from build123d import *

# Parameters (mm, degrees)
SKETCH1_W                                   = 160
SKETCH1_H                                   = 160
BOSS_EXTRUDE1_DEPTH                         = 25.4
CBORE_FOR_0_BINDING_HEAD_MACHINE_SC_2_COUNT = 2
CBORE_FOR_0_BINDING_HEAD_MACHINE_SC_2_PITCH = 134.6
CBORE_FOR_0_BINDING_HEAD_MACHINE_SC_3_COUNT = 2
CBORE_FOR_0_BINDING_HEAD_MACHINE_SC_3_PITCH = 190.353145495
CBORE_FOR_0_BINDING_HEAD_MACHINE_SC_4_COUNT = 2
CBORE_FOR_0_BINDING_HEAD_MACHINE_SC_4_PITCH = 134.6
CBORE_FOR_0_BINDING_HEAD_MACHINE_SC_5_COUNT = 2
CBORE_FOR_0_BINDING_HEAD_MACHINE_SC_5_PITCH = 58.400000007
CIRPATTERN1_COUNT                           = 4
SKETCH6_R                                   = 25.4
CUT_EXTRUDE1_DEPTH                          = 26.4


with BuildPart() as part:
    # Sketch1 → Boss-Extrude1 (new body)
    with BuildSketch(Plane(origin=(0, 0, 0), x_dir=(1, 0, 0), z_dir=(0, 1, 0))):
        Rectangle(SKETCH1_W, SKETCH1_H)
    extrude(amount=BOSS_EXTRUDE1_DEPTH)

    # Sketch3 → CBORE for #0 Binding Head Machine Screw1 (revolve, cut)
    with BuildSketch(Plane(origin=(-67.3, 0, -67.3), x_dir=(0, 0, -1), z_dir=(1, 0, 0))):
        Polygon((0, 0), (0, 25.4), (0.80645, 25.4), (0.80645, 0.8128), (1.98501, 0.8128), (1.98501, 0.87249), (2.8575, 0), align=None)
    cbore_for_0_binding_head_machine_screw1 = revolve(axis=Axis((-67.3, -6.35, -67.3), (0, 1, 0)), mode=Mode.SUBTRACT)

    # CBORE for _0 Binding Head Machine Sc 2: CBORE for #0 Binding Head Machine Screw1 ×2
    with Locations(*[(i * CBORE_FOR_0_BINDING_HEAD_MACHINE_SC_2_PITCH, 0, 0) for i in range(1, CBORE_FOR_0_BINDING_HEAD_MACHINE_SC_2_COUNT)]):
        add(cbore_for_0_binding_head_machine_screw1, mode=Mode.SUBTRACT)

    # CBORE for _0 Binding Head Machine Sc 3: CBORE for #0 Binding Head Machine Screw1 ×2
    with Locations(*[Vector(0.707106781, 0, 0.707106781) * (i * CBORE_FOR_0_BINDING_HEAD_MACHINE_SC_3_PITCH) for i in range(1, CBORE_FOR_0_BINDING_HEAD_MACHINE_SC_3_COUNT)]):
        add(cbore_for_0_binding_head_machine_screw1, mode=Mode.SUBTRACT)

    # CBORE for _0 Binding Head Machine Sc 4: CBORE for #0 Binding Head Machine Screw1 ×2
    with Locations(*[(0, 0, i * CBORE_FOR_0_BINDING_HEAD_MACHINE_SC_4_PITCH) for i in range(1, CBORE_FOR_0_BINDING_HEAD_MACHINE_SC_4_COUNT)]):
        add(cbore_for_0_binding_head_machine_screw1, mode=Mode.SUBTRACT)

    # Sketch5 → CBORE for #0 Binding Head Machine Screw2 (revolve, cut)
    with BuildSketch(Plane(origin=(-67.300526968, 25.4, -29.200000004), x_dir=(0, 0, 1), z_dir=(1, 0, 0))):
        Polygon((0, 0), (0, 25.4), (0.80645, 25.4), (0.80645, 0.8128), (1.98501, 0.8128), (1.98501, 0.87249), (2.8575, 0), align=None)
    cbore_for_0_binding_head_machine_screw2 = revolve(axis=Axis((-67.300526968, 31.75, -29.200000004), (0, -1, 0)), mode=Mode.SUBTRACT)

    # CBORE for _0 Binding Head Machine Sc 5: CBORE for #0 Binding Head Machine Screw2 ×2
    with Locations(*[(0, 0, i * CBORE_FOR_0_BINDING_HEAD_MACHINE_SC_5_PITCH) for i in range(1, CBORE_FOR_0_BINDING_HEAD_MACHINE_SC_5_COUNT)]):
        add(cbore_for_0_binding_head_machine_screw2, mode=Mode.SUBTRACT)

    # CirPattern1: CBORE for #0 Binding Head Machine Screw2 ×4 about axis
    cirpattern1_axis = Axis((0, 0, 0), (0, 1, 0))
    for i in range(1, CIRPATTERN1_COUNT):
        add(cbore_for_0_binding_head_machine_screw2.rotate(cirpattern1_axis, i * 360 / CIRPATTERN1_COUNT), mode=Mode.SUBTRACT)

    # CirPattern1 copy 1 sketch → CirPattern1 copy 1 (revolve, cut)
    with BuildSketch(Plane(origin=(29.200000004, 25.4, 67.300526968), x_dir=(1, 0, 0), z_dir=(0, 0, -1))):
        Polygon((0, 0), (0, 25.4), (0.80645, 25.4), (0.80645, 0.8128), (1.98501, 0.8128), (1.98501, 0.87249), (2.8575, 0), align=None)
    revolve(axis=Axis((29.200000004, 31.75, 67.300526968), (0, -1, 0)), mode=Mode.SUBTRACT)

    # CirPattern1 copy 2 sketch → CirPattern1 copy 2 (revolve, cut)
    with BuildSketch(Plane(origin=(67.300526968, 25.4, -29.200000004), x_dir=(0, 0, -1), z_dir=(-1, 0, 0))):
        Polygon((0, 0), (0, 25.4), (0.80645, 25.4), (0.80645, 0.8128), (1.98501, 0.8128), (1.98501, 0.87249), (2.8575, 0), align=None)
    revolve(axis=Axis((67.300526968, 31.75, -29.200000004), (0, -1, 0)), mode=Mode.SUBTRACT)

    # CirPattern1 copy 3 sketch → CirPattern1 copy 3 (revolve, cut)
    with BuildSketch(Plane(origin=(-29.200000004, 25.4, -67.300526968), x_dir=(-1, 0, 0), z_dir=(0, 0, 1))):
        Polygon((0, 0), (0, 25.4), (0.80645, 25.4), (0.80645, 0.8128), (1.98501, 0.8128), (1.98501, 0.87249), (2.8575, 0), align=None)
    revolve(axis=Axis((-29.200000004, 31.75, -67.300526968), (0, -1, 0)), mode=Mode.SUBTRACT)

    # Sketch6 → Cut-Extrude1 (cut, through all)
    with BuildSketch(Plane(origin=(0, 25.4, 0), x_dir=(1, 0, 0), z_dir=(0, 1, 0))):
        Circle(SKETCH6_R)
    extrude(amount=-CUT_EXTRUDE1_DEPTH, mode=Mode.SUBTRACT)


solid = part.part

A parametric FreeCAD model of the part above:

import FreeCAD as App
import Part
import Sketcher
Q = App.Units.Quantity


def add_polygon(sketch, points):
    """Adds a closed chain of lines whose ends are joined by coincident constraints."""
    first, n = sketch.GeometryCount, len(points)
    for a, b in zip(points, points[1:] + points[:1]):
        sketch.addGeometry(Part.LineSegment(App.Vector(*a, 0), App.Vector(*b, 0)), False)
    for i in range(n):
        sketch.addConstraint(Sketcher.Constraint("Coincident", first + i, 2, first + (i + 1) % n, 1))

doc = App.newDocument("Part")
params = doc.addObject("Spreadsheet::Sheet", "Params")
for row, (alias, value) in enumerate([
    ("pad1_length", "1 in"),
    ("sketch2_width", "1 in"),
    ("sketch2_width2", "0.968 in"),
    ("groove_angle", "360 deg"),
    ("linearpattern_pitch", "134.6 mm"),
    ("linearpattern2_pitch", "190.353145 mm"),
    ("linearpattern3_pitch", "134.6 mm"),
    ("sketch3_width", "1 in"),
    ("sketch3_width2", "0.968 in"),
    ("groove2_angle", "360 deg"),
    ("linearpattern4_pitch", "58.4 mm"),
    ("sketch4_height", "1 in"),
    ("sketch4_height2", "0.968 in"),
    ("groove3_angle", "360 deg"),
    ("sketch5_width", "1 in"),
    ("sketch5_width2", "0.968 in"),
    ("groove4_angle", "360 deg"),
    ("sketch6_height", "1 in"),
    ("sketch6_height2", "0.968 in"),
    ("groove5_angle", "360 deg"),
    ("sketch7_diameter", "2 in"),
], start=1):
    params.set(f"A{row}", alias)
    params.set(f"B{row}", "=" + value)
    params.setAlias(f"B{row}", alias)

body = doc.addObject("PartDesign::Body", "Body")

# Sketch on XZ plane
sketch1 = body.newObject("Sketcher::SketchObject", "Sketch")
sketch1.AttachmentSupport = (doc.getObject("XZ_Plane"), [""])
sketch1.MapMode = "FlatFace"
add_polygon(sketch1, [(-80, -80), (-80, 80), (80, 80), (80, -80)])  # lines 0-3
sketch1.addConstraint([
    Sketcher.Constraint("Vertical", 0),
    Sketcher.Constraint("Horizontal", 1),
    Sketcher.Constraint("Vertical", 2),
    Sketcher.Constraint("Horizontal", 3),
    Sketcher.Constraint("Symmetric", 0, 2, 2, 2, -1, 1),
    Sketcher.Constraint("Equal", 3, 0),
    Sketcher.Constraint("DistanceX", 1, 1, 1, 2, 160.0),
])
pad1 = body.newObject("PartDesign::Pad", "Pad")
pad1.Profile = sketch1
pad1.setExpression("Length", "Params.pad1_length")
pad1.Reversed = True

# Sketch on YZ plane
sketch2 = body.newObject("Sketcher::SketchObject", "Sketch001")
sketch2.AttachmentSupport = (doc.getObject("YZ_Plane"), [""])
sketch2.MapMode = "FlatFace"
sketch2.AttachmentOffset = App.Placement(App.Vector(0, 0, -67.3), App.Rotation())
add_polygon(sketch2, [(25.4, -67.3), (0, -67.3), (0, -70.1575), (0.87249, -69.28501), (0.8128, -69.28501), (0.8128, -68.10645), (25.4, -68.10645)])  # lines 0-6
sketch2.addGeometry(Part.LineSegment(App.Vector(0, -67.3, 0), App.Vector(25.4, -67.3, 0)), True)  # axis
sketch2.addConstraint([
    Sketcher.Constraint("Horizontal", 0),
    Sketcher.Constraint("Vertical", 1),
    Sketcher.Constraint("Horizontal", 3),
    Sketcher.Constraint("Vertical", 4),
    Sketcher.Constraint("Horizontal", 5),
    Sketcher.Constraint("Vertical", 6),
    Sketcher.Constraint("Horizontal", 7),
    Sketcher.Constraint("Coincident", 7, 1, 0, 2),
    Sketcher.Constraint("PointOnObject", 0, 2, -2),
    Sketcher.Constraint("Vertical", 5, 2, 7, 2),
    Sketcher.Constraint("DistanceX", 0, 2, 0, 1, Q("1 in")),
    Sketcher.Constraint("Angle", 2, Q("45 deg")),
    Sketcher.Constraint("DistanceX", 5, 1, 5, 2, Q("0.968 in")),
    Sketcher.Constraint("DistanceY", 1, 2, 1, 1, Q("0.1125 in")),
    Sketcher.Constraint("DistanceY", 4, 1, 4, 2, Q("0.0464 in")),
    Sketcher.Constraint("DistanceX", 3, 2, 3, 1, 0.05969),
    Sketcher.Constraint("DistanceY", 0, 2, -1, 1, 67.3),
])
sketch2.setExpression("Constraints[17]", "Params.sketch2_width")
sketch2.setExpression("Constraints[19]", "Params.sketch2_width2")
groove = body.newObject("PartDesign::Groove", "Groove")
groove.Profile = sketch2
groove.ReferenceAxis = (sketch2, ["Axis0"])
groove.setExpression("Angle", "Params.groove_angle")
doc.recompute()

linearpattern = body.newObject("PartDesign::LinearPattern", "LinearPattern")
linearpattern.Originals = [groove]
linearpattern.Direction = (doc.getObject("X_Axis"), [""])
linearpattern.Mode = "offset"
linearpattern.setExpression("Offset", "Params.linearpattern_pitch")
linearpattern.Occurrences = 2
body.Tip = linearpattern
doc.recompute()

datumline = body.newObject("PartDesign::Line", "DatumLine")
datumline.Placement = App.Placement(App.Vector(0, 0, 0), App.Rotation(App.Vector(0, 0, 1), App.Vector(0.707106781, 0, 0.707106781)))
linearpattern2 = body.newObject("PartDesign::LinearPattern", "LinearPattern001")
linearpattern2.Originals = [groove]
linearpattern2.Direction = (datumline, [""])
linearpattern2.Mode = "offset"
linearpattern2.setExpression("Offset", "Params.linearpattern2_pitch")
linearpattern2.Occurrences = 2
body.Tip = linearpattern2
doc.recompute()

linearpattern3 = body.newObject("PartDesign::LinearPattern", "LinearPattern002")
linearpattern3.Originals = [groove]
linearpattern3.Direction = (doc.getObject("Z_Axis"), [""])
linearpattern3.Mode = "offset"
linearpattern3.setExpression("Offset", "Params.linearpattern3_pitch")
linearpattern3.Occurrences = 2
body.Tip = linearpattern3

# Sketch on YZ plane
sketch3 = body.newObject("Sketcher::SketchObject", "Sketch002")
sketch3.AttachmentSupport = (doc.getObject("YZ_Plane"), [""])
sketch3.MapMode = "FlatFace"
sketch3.AttachmentOffset = App.Placement(App.Vector(0, 0, -67.300527), App.Rotation())
add_polygon(sketch3, [(0, -29.2), (25.4, -29.2), (25.4, -26.3425), (24.52751, -27.21499), (24.5872, -27.21499), (24.5872, -28.39355), (0, -28.39355)])  # lines 0-6
sketch3.addGeometry(Part.LineSegment(App.Vector(25.4, -29.2, 0), App.Vector(0, -29.2, 0)), True)  # axis
sketch3.addConstraint([
    Sketcher.Constraint("Horizontal", 0),
    Sketcher.Constraint("Vertical", 1),
    Sketcher.Constraint("Horizontal", 3),
    Sketcher.Constraint("Vertical", 4),
    Sketcher.Constraint("Horizontal", 5),
    Sketcher.Constraint("Vertical", 6),
    Sketcher.Constraint("Horizontal", 7),
    Sketcher.Constraint("Coincident", 7, 1, 0, 2),
    Sketcher.Constraint("PointOnObject", 5, 2, -2),
    Sketcher.Constraint("PointOnObject", 7, 2, -2),
    Sketcher.Constraint("DistanceX", 0, 1, 0, 2, Q("1 in")),
    Sketcher.Constraint("Angle", 2, Q("-135 deg")),
    Sketcher.Constraint("DistanceX", 5, 2, 5, 1, Q("0.968 in")),
    Sketcher.Constraint("DistanceY", 1, 1, 1, 2, Q("0.1125 in")),
    Sketcher.Constraint("DistanceY", 4, 2, 4, 1, Q("0.0464 in")),
    Sketcher.Constraint("DistanceX", 3, 1, 3, 2, 0.05969),
    Sketcher.Constraint("DistanceY", 0, 2, -1, 1, 29.2),
])
sketch3.setExpression("Constraints[17]", "Params.sketch3_width")
sketch3.setExpression("Constraints[19]", "Params.sketch3_width2")
groove2 = body.newObject("PartDesign::Groove", "Groove001")
groove2.Profile = sketch3
groove2.ReferenceAxis = (sketch3, ["Axis0"])
groove2.setExpression("Angle", "Params.groove2_angle")
doc.recompute()

linearpattern4 = body.newObject("PartDesign::LinearPattern", "LinearPattern003")
linearpattern4.Originals = [groove2]
linearpattern4.Direction = (doc.getObject("Z_Axis"), [""])
linearpattern4.Mode = "offset"
linearpattern4.setExpression("Offset", "Params.linearpattern4_pitch")
linearpattern4.Occurrences = 2
body.Tip = linearpattern4
doc.recompute()

polarpattern = body.newObject("PartDesign::PolarPattern", "PolarPattern")
polarpattern.Originals = [groove2]
polarpattern.Axis = (doc.getObject("Y_Axis"), [""])
polarpattern.Angle = 360
polarpattern.Occurrences = 4
body.Tip = polarpattern

# Sketch on XY plane
sketch4 = body.newObject("Sketcher::SketchObject", "Sketch003")
sketch4.AttachmentSupport = (doc.getObject("XY_Plane"), [""])
sketch4.MapMode = "FlatFace"
sketch4.AttachmentOffset = App.Placement(App.Vector(0, 0, 67.300527), App.Rotation())
add_polygon(sketch4, [(29.2, 0), (29.2, 25.4), (32.0575, 25.4), (31.18501, 24.52751), (31.18501, 24.5872), (30.00645, 24.5872), (30.00645, 0)])  # lines 0-6
sketch4.addGeometry(Part.LineSegment(App.Vector(29.2, 25.4, 0), App.Vector(29.2, 0, 0)), True)  # axis
sketch4.addConstraint([
    Sketcher.Constraint("Vertical", 0),
    Sketcher.Constraint("Horizontal", 1),
    Sketcher.Constraint("Vertical", 3),
    Sketcher.Constraint("Horizontal", 4),
    Sketcher.Constraint("Vertical", 5),
    Sketcher.Constraint("Horizontal", 6),
    Sketcher.Constraint("Vertical", 7),
    Sketcher.Constraint("Coincident", 7, 1, 0, 2),
    Sketcher.Constraint("PointOnObject", 5, 2, -1),
    Sketcher.Constraint("PointOnObject", 7, 2, -1),
    Sketcher.Constraint("DistanceY", 0, 1, 0, 2, Q("1 in")),
    Sketcher.Constraint("Angle", 2, Q("-135 deg")),
    Sketcher.Constraint("DistanceY", 5, 2, 5, 1, Q("0.968 in")),
    Sketcher.Constraint("DistanceX", 1, 1, 1, 2, Q("0.1125 in")),
    Sketcher.Constraint("DistanceX", 4, 2, 4, 1, Q("0.0464 in")),
    Sketcher.Constraint("DistanceX", 6, 2, 6, 1, 0.80645),
    Sketcher.Constraint("DistanceX", -1, 1, 0, 2, 29.2),
])
sketch4.setExpression("Constraints[17]", "Params.sketch4_height")
sketch4.setExpression("Constraints[19]", "Params.sketch4_height2")
groove3 = body.newObject("PartDesign::Groove", "Groove002")
groove3.Profile = sketch4
groove3.ReferenceAxis = (sketch4, ["Axis0"])
groove3.setExpression("Angle", "Params.groove3_angle")

# Sketch on YZ plane
sketch5 = body.newObject("Sketcher::SketchObject", "Sketch004")
sketch5.AttachmentSupport = (doc.getObject("YZ_Plane"), [""])
sketch5.MapMode = "FlatFace"
sketch5.AttachmentOffset = App.Placement(App.Vector(0, 0, 67.300527), App.Rotation())
add_polygon(sketch5, [(0, -29.2), (25.4, -29.2), (25.4, -32.0575), (24.52751, -31.18501), (24.5872, -31.18501), (24.5872, -30.00645), (0, -30.00645)])  # lines 0-6
sketch5.addGeometry(Part.LineSegment(App.Vector(25.4, -29.2, 0), App.Vector(0, -29.2, 0)), True)  # axis
sketch5.addConstraint([
    Sketcher.Constraint("Horizontal", 0),
    Sketcher.Constraint("Vertical", 1),
    Sketcher.Constraint("Horizontal", 3),
    Sketcher.Constraint("Vertical", 4),
    Sketcher.Constraint("Horizontal", 5),
    Sketcher.Constraint("Vertical", 6),
    Sketcher.Constraint("Horizontal", 7),
    Sketcher.Constraint("Coincident", 7, 1, 0, 2),
    Sketcher.Constraint("PointOnObject", 5, 2, -2),
    Sketcher.Constraint("PointOnObject", 7, 2, -2),
    Sketcher.Constraint("DistanceX", 0, 1, 0, 2, Q("1 in")),
    Sketcher.Constraint("Angle", 2, Q("135 deg")),
    Sketcher.Constraint("DistanceX", 5, 2, 5, 1, Q("0.968 in")),
    Sketcher.Constraint("DistanceY", 1, 2, 1, 1, Q("0.1125 in")),
    Sketcher.Constraint("DistanceY", 4, 1, 4, 2, Q("0.0464 in")),
    Sketcher.Constraint("DistanceX", 3, 1, 3, 2, 0.05969),
    Sketcher.Constraint("DistanceY", 0, 2, -1, 1, 29.2),
])
sketch5.setExpression("Constraints[17]", "Params.sketch5_width")
sketch5.setExpression("Constraints[19]", "Params.sketch5_width2")
groove4 = body.newObject("PartDesign::Groove", "Groove003")
groove4.Profile = sketch5
groove4.ReferenceAxis = (sketch5, ["Axis0"])
groove4.setExpression("Angle", "Params.groove4_angle")

# Sketch on XY plane
sketch6 = body.newObject("Sketcher::SketchObject", "Sketch005")
sketch6.AttachmentSupport = (doc.getObject("XY_Plane"), [""])
sketch6.MapMode = "FlatFace"
sketch6.AttachmentOffset = App.Placement(App.Vector(0, 0, -67.300527), App.Rotation())
add_polygon(sketch6, [(-29.2, 0), (-29.2, 25.4), (-32.0575, 25.4), (-31.18501, 24.52751), (-31.18501, 24.5872), (-30.00645, 24.5872), (-30.00645, 0)])  # lines 0-6
sketch6.addGeometry(Part.LineSegment(App.Vector(-29.2, 25.4, 0), App.Vector(-29.2, 0, 0)), True)  # axis
sketch6.addConstraint([
    Sketcher.Constraint("Vertical", 0),
    Sketcher.Constraint("Horizontal", 1),
    Sketcher.Constraint("Vertical", 3),
    Sketcher.Constraint("Horizontal", 4),
    Sketcher.Constraint("Vertical", 5),
    Sketcher.Constraint("Horizontal", 6),
    Sketcher.Constraint("Vertical", 7),
    Sketcher.Constraint("Coincident", 7, 1, 0, 2),
    Sketcher.Constraint("PointOnObject", 5, 2, -1),
    Sketcher.Constraint("PointOnObject", 7, 2, -1),
    Sketcher.Constraint("DistanceY", 0, 1, 0, 2, Q("1 in")),
    Sketcher.Constraint("Angle", 2, Q("-45 deg")),
    Sketcher.Constraint("DistanceY", 5, 2, 5, 1, Q("0.968 in")),
    Sketcher.Constraint("DistanceX", 1, 2, 1, 1, Q("0.1125 in")),
    Sketcher.Constraint("DistanceX", 4, 1, 4, 2, Q("0.0464 in")),
    Sketcher.Constraint("DistanceX", 6, 1, 6, 2, 0.80645),
    Sketcher.Constraint("DistanceX", 0, 2, -1, 1, 29.2),
])
sketch6.setExpression("Constraints[17]", "Params.sketch6_height")
sketch6.setExpression("Constraints[19]", "Params.sketch6_height2")
groove5 = body.newObject("PartDesign::Groove", "Groove004")
groove5.Profile = sketch6
groove5.ReferenceAxis = (sketch6, ["Axis0"])
groove5.setExpression("Angle", "Params.groove5_angle")

# Sketch on XZ plane
sketch7 = body.newObject("Sketcher::SketchObject", "Sketch006")
sketch7.AttachmentSupport = (doc.getObject("XZ_Plane"), [""])
sketch7.MapMode = "FlatFace"
sketch7.AttachmentOffset = App.Placement(App.Vector(0, 0, -1 * 25.4), App.Rotation())
sketch7.addGeometry(Part.Circle(App.Vector(0, 0, 0), App.Vector(0, 0, 1), 25.4), False)
sketch7.addConstraint([
    Sketcher.Constraint("Coincident", 0, 3, -1, 1),
    Sketcher.Constraint("Diameter", 0, Q("2 in")),
])
sketch7.setExpression("Constraints[1]", "Params.sketch7_diameter")
pocket1 = body.newObject("PartDesign::Pocket", "Pocket")
pocket1.Profile = sketch7
pocket1.Type = "ThroughAll"
pocket1.Reversed = True

doc.recompute()
